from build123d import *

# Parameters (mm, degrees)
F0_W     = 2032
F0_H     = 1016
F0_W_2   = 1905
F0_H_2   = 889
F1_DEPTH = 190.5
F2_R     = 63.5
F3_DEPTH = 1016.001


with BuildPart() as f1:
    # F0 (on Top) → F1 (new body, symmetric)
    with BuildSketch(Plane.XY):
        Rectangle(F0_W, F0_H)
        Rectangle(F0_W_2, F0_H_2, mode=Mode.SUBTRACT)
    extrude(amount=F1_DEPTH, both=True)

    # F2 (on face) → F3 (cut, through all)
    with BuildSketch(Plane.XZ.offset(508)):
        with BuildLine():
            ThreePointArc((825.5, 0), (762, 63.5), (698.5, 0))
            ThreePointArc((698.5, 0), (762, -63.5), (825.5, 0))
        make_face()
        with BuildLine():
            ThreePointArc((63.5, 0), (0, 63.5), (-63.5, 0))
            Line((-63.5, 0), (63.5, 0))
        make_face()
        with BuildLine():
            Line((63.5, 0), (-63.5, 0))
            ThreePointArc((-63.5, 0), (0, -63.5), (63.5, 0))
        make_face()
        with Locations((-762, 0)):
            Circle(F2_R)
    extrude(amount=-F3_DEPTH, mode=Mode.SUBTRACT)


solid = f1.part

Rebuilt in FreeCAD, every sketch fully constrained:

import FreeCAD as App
import Part
import Sketcher

V = App.Vector
Q = App.Units.Quantity

doc = App.newDocument("Part")
body = doc.addObject("PartDesign::Body", "Body")

# Sketch on XY plane
sketch1 = doc.addObject("Sketcher::SketchObject", "Sketch")
body.addObject(sketch1)
sketch1.AttachmentSupport = (doc.XY_Plane, [""])
sketch1.MapMode = "FlatFace"
sketch1.addGeometry([
    Part.LineSegment(V(-1016, 508, 0), V(-1016, -508, 0)),  # 0
    Part.LineSegment(V(-1016, -508, 0), V(1016, -508, 0)),  # 1
    Part.LineSegment(V(1016, -508, 0), V(1016, 508, 0)),  # 2
    Part.LineSegment(V(1016, 508, 0), V(-1016, 508, 0)),  # 3
    Part.LineSegment(V(952, -444, 0), V(-952, -444, 0)),  # 4
    Part.LineSegment(V(-952, -444, 0), V(-952, 444, 0)),  # 5
    Part.LineSegment(V(-952, 444, 0), V(952, 444, 0)),  # 6
    Part.LineSegment(V(952, 444, 0), V(952, -444, 0)),  # 7
], False)
sketch1.addConstraint([
    Sketcher.Constraint("Coincident", 0, 2, 1, 1),
    Sketcher.Constraint("Coincident", 1, 2, 2, 1),
    Sketcher.Constraint("Coincident", 2, 2, 3, 1),
    Sketcher.Constraint("Coincident", 3, 2, 0, 1),
    Sketcher.Constraint("Coincident", 4, 2, 5, 1),
    Sketcher.Constraint("Coincident", 5, 2, 6, 1),
    Sketcher.Constraint("Coincident", 6, 2, 7, 1),
    Sketcher.Constraint("Coincident", 7, 2, 4, 1),
    Sketcher.Constraint("Vertical", 0),
    Sketcher.Constraint("Horizontal", 1),
    Sketcher.Constraint("Vertical", 2),
    Sketcher.Constraint("Horizontal", 3),
    Sketcher.Constraint("Horizontal", 4),
    Sketcher.Constraint("Vertical", 5),
    Sketcher.Constraint("Horizontal", 6),
    Sketcher.Constraint("Vertical", 7),
    Sketcher.Constraint("Symmetric", 0, 2, 2, 2, -1, 1),
    Sketcher.Constraint("Symmetric", 4, 2, 6, 2, -1, 1),
    Sketcher.Constraint("DistanceX", 1, 1, 1, 2, Q("80 in")),
    Sketcher.Constraint("DistanceX", 4, 2, 4, 1, Q("75 in")),
    Sketcher.Constraint("DistanceY", 0, 2, 0, 1, Q("40 in")),
    Sketcher.Constraint("DistanceY", 5, 1, 5, 2, Q("35 in")),
])
pad1 = doc.addObject("PartDesign::Pad", "Pad")
body.addObject(pad1)
pad1.Profile = sketch1
pad1.Length = Q("15 in")
pad1.Midplane = True

# Sketch on XZ plane
sketch2 = doc.addObject("Sketcher::SketchObject", "Sketch001")
body.addObject(sketch2)
sketch2.AttachmentSupport = (doc.XZ_Plane, [""])
sketch2.MapMode = "FlatFace"
sketch2.AttachmentOffset = App.Placement(V(0, 0, 20 * 25.4), App.Rotation())
sketch2.addGeometry([
    Part.Circle(V(762, 0, 0), V(0, 0, 1), 64),
    Part.Circle(V(0, 0, 0), V(0, 0, 1), 64),
    Part.Circle(V(-762, 0, 0), V(0, 0, 1), 64),
], False)
sketch2.addConstraint([
    Sketcher.Constraint("Coincident", 1, 3, -1, 1),
    Sketcher.Constraint("Equal", 0, 1),
    Sketcher.Constraint("Equal", 1, 2),
    Sketcher.Constraint("Symmetric", 0, 3, 2, 3, -1, 1),
    Sketcher.Constraint("PointOnObject", 0, 3, -1),
    Sketcher.Constraint("Diameter", 0, Q("5 in")),
    Sketcher.Constraint("DistanceX", -1, 1, 0, 3, Q("30 in")),
])
pocket1 = doc.addObject("PartDesign::Pocket", "Pocket")
body.addObject(pocket1)
pocket1.Profile = sketch2
pocket1.Type = "ThroughAll"

doc.recompute()
